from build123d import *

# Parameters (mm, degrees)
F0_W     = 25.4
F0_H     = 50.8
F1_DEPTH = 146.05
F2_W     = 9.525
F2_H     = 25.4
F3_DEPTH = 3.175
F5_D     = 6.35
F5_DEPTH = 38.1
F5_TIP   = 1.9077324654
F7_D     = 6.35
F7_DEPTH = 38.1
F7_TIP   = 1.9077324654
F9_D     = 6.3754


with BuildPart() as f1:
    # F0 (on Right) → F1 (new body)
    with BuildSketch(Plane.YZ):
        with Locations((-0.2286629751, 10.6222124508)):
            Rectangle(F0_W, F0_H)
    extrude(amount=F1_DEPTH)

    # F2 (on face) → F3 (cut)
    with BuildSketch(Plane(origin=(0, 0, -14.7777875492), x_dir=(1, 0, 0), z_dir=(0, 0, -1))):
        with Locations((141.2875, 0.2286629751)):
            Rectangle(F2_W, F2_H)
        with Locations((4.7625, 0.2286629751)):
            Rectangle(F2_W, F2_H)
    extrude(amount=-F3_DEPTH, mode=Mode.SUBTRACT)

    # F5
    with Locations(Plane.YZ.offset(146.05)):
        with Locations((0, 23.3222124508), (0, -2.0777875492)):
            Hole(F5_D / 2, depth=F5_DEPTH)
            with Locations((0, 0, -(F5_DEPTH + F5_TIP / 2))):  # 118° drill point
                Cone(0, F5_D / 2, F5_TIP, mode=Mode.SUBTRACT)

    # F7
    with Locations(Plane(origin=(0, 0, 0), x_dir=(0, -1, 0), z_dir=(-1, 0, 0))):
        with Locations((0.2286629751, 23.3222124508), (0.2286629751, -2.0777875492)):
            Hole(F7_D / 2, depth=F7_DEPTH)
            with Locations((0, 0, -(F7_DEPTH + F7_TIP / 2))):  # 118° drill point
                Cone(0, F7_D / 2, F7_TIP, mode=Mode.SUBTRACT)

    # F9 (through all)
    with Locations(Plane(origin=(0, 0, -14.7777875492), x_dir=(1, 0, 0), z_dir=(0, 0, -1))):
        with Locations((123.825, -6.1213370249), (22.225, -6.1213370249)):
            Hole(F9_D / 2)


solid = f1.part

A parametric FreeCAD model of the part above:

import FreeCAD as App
import Part
import Sketcher
Q = App.Units.Quantity


def add_polygon(sketch, points):
    """Adds a closed chain of lines whose ends are joined by coincident constraints."""
    first, n = sketch.GeometryCount, len(points)
    for a, b in zip(points, points[1:] + points[:1]):
        sketch.addGeometry(Part.LineSegment(App.Vector(*a, 0), App.Vector(*b, 0)), False)
    for i in range(n):
        sketch.addConstraint(Sketcher.Constraint("Coincident", first + i, 2, first + (i + 1) % n, 1))

doc = App.newDocument("Part")
body = doc.addObject("PartDesign::Body", "Body")

# Sketch on YZ plane
sketch1 = doc.addObject("Sketcher::SketchObject", "Sketch")
body.addObject(sketch1)
sketch1.AttachmentSupport = (doc.YZ_Plane, [""])
sketch1.MapMode = "FlatFace"
add_polygon(sketch1, [(-13, 36), (-13, -15), (12, -15), (12, 36)])  # lines 0-3
sketch1.addConstraint([
    Sketcher.Constraint("Vertical", 0),
    Sketcher.Constraint("Horizontal", 1),
    Sketcher.Constraint("Vertical", 2),
    Sketcher.Constraint("Horizontal", 3),
    Sketcher.Constraint("DistanceX", 1, 1, 1, 2, Q("1 in")),
    Sketcher.Constraint("DistanceY", 0, 2, 0, 1, Q("2 in")),
    Sketcher.Constraint("DistanceX", 0, 2, -1, 1, 12.928663),
    Sketcher.Constraint("DistanceY", 0, 2, -1, 1, 14.777788),
])
pad1 = doc.addObject("PartDesign::Pad", "Pad")
body.addObject(pad1)
pad1.Profile = sketch1
pad1.Length = Q("5.75 in")

# Sketch on XY plane
sketch2 = doc.addObject("Sketcher::SketchObject", "Sketch001")
body.addObject(sketch2)
sketch2.AttachmentSupport = (doc.XY_Plane, [""])
sketch2.MapMode = "FlatFace"
sketch2.AttachmentOffset = App.Placement(App.Vector(0, 0, -14.777788), App.Rotation())
add_polygon(sketch2, [(137, -13), (137, 12), (146, 12), (146, -13)])  # lines 0-3
add_polygon(sketch2, [(0, -13), (0, 12), (10, 12), (10, -13)])  # lines 4-7
sketch2.addConstraint([
    Sketcher.Constraint("Vertical", 0),
    Sketcher.Constraint("Horizontal", 1),
    Sketcher.Constraint("Vertical", 2),
    Sketcher.Constraint("Horizontal", 3),
    Sketcher.Constraint("Vertical", 4),
    Sketcher.Constraint("Horizontal", 5),
    Sketcher.Constraint("Vertical", 6),
    Sketcher.Constraint("Horizontal", 7),
    Sketcher.Constraint("PointOnObject", 4, 2, -2),
    Sketcher.Constraint("Horizontal", 1, 2, 4, 2),
    Sketcher.Constraint("Horizontal", 3, 2, 6, 2),
    Sketcher.Constraint("Equal", 3, 5),
    Sketcher.Constraint("DistanceY", 0, 1, 0, 2, Q("1 in")),
    Sketcher.Constraint("DistanceX", 5, 2, 0, 2, Q("5 in")),
    Sketcher.Constraint("DistanceX", 1, 1, 1, 2, Q("0.375 in")),
    Sketcher.Constraint("DistanceY", -1, 1, 0, 2, 12.471337),
])
pocket1 = doc.addObject("PartDesign::Pocket", "Pocket")
body.addObject(pocket1)
pocket1.Profile = sketch2
pocket1.Length = Q("0.125 in")
pocket1.Reversed = True

# Sketch on YZ plane
sketch3 = doc.addObject("Sketcher::SketchObject", "Sketch002")
body.addObject(sketch3)
sketch3.AttachmentSupport = (doc.YZ_Plane, [""])
sketch3.MapMode = "FlatFace"
sketch3.AttachmentOffset = App.Placement(App.Vector(0, 0, 5.75 * 25.4), App.Rotation())
sketch3.addGeometry([
    Part.Circle(App.Vector(0, 23.3, 0), App.Vector(0, 0, 1), 3.2),
    Part.Circle(App.Vector(0, -2.1, 0), App.Vector(0, 0, 1), 3.2),
], False)
sketch3.addConstraint([
    Sketcher.Constraint("Equal", 0, 1),
    Sketcher.Constraint("PointOnObject", 0, 3, -2),
    Sketcher.Constraint("PointOnObject", 1, 3, -2),
    Sketcher.Constraint("Diameter", 0, Q("0.25 in")),
    Sketcher.Constraint("DistanceY", 1, 3, 0, 3, Q("1 in")),
    Sketcher.Constraint("DistanceY", -1, 1, 0, 3, 23.322212),
])
doc.recompute()
hole = doc.addObject("PartDesign::Hole", "Hole")
body.addObject(hole)
hole.Profile = sketch3
hole.ThreadType = "None"
hole.Diameter = Q("0.25 in")
hole.DepthType = "Dimension"
hole.Depth = Q("1.5 in")
hole.DrillPoint = "Angled"
hole.DrillPointAngle = 118

# Sketch on YZ plane
sketch4 = doc.addObject("Sketcher::SketchObject", "Sketch003")
body.addObject(sketch4)
sketch4.AttachmentSupport = (doc.YZ_Plane, [""])
sketch4.MapMode = "FlatFace"
sketch4.addGeometry([
    Part.Circle(App.Vector(-0.2, 23.3, 0), App.Vector(0, 0, 1), 3.2),
    Part.Circle(App.Vector(-0.2, -2.1, 0), App.Vector(0, 0, 1), 3.2),
], False)
sketch4.addConstraint([
    Sketcher.Constraint("Equal", 0, 1),
    Sketcher.Constraint("Vertical", 0, 3, 1, 3),
    Sketcher.Constraint("Diameter", 0, Q("0.25 in")),
    Sketcher.Constraint("DistanceY", 1, 3, 0, 3, Q("1 in")),
    Sketcher.Constraint("DistanceX", 0, 3, -1, 1, 0.228663),
    Sketcher.Constraint("DistanceY", -1, 1, 0, 3, 23.322212),
])
doc.recompute()
hole2 = doc.addObject("PartDesign::Hole", "Hole001")
body.addObject(hole2)
hole2.Profile = sketch4
hole2.ThreadType = "None"
hole2.Diameter = Q("0.25 in")
hole2.DepthType = "Dimension"
hole2.Depth = Q("1.5 in")
hole2.DrillPoint = "Angled"
hole2.DrillPointAngle = 118
hole2.Reversed = True

# Sketch on XY plane
sketch5 = doc.addObject("Sketcher::SketchObject", "Sketch004")
body.addObject(sketch5)
sketch5.AttachmentSupport = (doc.XY_Plane, [""])
sketch5.MapMode = "FlatFace"
sketch5.AttachmentOffset = App.Placement(App.Vector(0, 0, -14.777788), App.Rotation())
sketch5.addGeometry([
    Part.Circle(App.Vector(123.8, 6.1, 0), App.Vector(0, 0, 1), 3.2),
    Part.Circle(App.Vector(22.2, 6.1, 0), App.Vector(0, 0, 1), 3.2),
], False)
sketch5.addConstraint([
    Sketcher.Constraint("Equal", 0, 1),
    Sketcher.Constraint("Horizontal", 0, 3, 1, 3),
    Sketcher.Constraint("Diameter", 0, Q("0.251 in")),
    Sketcher.Constraint("DistanceX", 1, 3, 0, 3, Q("4 in")),
    Sketcher.Constraint("DistanceX", -1, 1, 0, 3, Q("4.875 in")),
    Sketcher.Constraint("DistanceY", -1, 1, 0, 3, 6.121337),
])
doc.recompute()
hole3 = doc.addObject("PartDesign::Hole", "Hole002")
body.addObject(hole3)
hole3.Profile = sketch5
hole3.ThreadType = "None"
hole3.Diameter = Q("0.251 in")
hole3.DepthType = "ThroughAll"
hole3.Reversed = True

doc.recompute()
